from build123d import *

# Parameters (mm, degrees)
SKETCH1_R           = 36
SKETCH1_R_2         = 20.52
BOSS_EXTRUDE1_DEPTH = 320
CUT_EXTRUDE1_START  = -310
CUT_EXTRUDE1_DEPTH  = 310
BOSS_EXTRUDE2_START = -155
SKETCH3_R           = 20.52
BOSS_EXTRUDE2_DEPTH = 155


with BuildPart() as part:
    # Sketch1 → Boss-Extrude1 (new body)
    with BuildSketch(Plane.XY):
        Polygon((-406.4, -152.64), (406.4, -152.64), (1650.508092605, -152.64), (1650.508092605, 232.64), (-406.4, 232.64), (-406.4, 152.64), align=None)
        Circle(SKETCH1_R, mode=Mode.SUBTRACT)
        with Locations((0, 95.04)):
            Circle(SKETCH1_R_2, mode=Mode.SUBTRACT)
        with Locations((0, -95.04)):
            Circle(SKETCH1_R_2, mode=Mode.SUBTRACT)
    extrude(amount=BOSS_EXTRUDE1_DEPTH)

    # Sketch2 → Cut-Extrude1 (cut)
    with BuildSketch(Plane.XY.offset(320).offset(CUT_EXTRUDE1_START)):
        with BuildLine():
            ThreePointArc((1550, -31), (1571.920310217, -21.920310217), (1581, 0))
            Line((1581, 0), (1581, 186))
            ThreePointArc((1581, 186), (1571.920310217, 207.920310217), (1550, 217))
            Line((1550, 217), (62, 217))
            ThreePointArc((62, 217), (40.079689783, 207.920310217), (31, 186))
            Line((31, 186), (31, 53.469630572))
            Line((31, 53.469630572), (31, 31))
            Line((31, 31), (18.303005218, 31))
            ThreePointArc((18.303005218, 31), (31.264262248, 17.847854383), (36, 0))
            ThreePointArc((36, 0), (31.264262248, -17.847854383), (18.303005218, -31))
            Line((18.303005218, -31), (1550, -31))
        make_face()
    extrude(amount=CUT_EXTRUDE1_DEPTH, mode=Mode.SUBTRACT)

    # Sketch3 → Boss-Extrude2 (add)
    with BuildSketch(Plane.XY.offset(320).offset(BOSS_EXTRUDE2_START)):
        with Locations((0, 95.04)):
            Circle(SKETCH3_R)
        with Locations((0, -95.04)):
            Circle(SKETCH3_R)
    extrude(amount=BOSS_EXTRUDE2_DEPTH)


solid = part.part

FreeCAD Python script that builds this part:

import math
import FreeCAD as App
import Part
import Sketcher

V = App.Vector

doc = App.newDocument("Part")
body = doc.addObject("PartDesign::Body", "Body")

sketch1 = body.newObject("Sketcher::SketchObject", "Sketch")
sketch1.AttachmentSupport = (doc.getObject("XY_Plane"), [""])
sketch1.MapMode = "FlatFace"
sketch1.addGeometry(Part.LineSegment(V(-406, -153, 0), V(1651, -153, 0)), False)
sketch1.addGeometry(Part.LineSegment(V(1651, -153, 0), V(1651, 233, 0)), False)
sketch1.addGeometry(Part.LineSegment(V(1651, 233, 0), V(-406, 233, 0)), False)
sketch1.addGeometry(Part.LineSegment(V(-406, 233, 0), V(-406, -153, 0)), False)
sketch1.addGeometry(Part.Circle(V(0, -95, 0), V(0, 0, 1), 21), False)
sketch1.addGeometry(Part.Circle(V(0, 0, 0), V(0, 0, 1), 36), False)
sketch1.addGeometry(Part.Circle(V(0, 95, 0), V(0, 0, 1), 21), False)
sketch1.addConstraint(Sketcher.Constraint("Coincident", 0, 2, 1, 1))
sketch1.addConstraint(Sketcher.Constraint("Coincident", 1, 2, 2, 1))
sketch1.addConstraint(Sketcher.Constraint("Coincident", 2, 2, 3, 1))
sketch1.addConstraint(Sketcher.Constraint("Coincident", 3, 2, 0, 1))
sketch1.addConstraint(Sketcher.Constraint("Horizontal", 0))
sketch1.addConstraint(Sketcher.Constraint("Vertical", 1))
sketch1.addConstraint(Sketcher.Constraint("Horizontal", 2))
sketch1.addConstraint(Sketcher.Constraint("Vertical", 3))
sketch1.addConstraint(Sketcher.Constraint("Coincident", 5, 3, -1, 1))
sketch1.addConstraint(Sketcher.Constraint("Equal", 4, 6))
sketch1.addConstraint(Sketcher.Constraint("Symmetric", 4, 3, 6, 3, -1, 1))
sketch1.addConstraint(Sketcher.Constraint("PointOnObject", 4, 3, -2))
sketch1.addConstraint(Sketcher.Constraint("Diameter", 5, 72.0))
sketch1.addConstraint(Sketcher.Constraint("Diameter", 4, 41.04))
sketch1.addConstraint(Sketcher.Constraint("DistanceY", 1, 1, 1, 2, 385.28))
sketch1.addConstraint(Sketcher.Constraint("DistanceX", 2, 2, -1, 1, 406.4))
sketch1.addConstraint(Sketcher.Constraint("DistanceY", 0, 2, 4, 3, 57.6))
sketch1.addConstraint(Sketcher.Constraint("DistanceY", 6, 3, 1, 2, 137.6))
sketch1.addConstraint(Sketcher.Constraint("DistanceX", 0, 1, 0, 2, 2056.908093))
pad1 = body.newObject("PartDesign::Pad", "Pad")
pad1.Profile = sketch1
pad1.Length = 320

sketch2 = body.newObject("Sketcher::SketchObject", "Sketch001")
sketch2.AttachmentSupport = (doc.getObject("XY_Plane"), [""])
sketch2.MapMode = "FlatFace"
sketch2.AttachmentOffset = App.Placement(V(0, 0, 10), App.Rotation())
sketch2.addGeometry(Part.ArcOfCircle(Part.Circle(V(1550, 0, 0), V(0, 0, 1), 31), math.radians(-90), math.radians(0)), False)
sketch2.addGeometry(Part.LineSegment(V(1581, 0, 0), V(1581, 186, 0)), False)
sketch2.addGeometry(Part.ArcOfCircle(Part.Circle(V(1550, 186, 0), V(0, 0, 1), 31), math.radians(0), math.radians(90)), False)
sketch2.addGeometry(Part.LineSegment(V(1550, 217, 0), V(62, 217, 0)), False)
sketch2.addGeometry(Part.ArcOfCircle(Part.Circle(V(62, 186, 0), V(0, 0, 1), 31), math.radians(90), math.radians(180)), False)
sketch2.addGeometry(Part.LineSegment(V(31, 186, 0), V(31, 31, 0)), False)
sketch2.addGeometry(Part.LineSegment(V(31, 31, 0), V(18, 31, 0)), False)
sketch2.addGeometry(Part.ArcOfCircle(Part.Circle(V(0, 0, 0), V(0, 0, 1), 36), math.radians(0), math.radians(59)), False)
sketch2.addGeometry(Part.ArcOfCircle(Part.Circle(V(0, 0, 0), V(0, 0, 1), 36), math.radians(-59), math.radians(0)), False)
sketch2.addGeometry(Part.LineSegment(V(18, -31, 0), V(1550, -31, 0)), False)
sketch2.addConstraint(Sketcher.Constraint("Tangent", 0, 2, 1, 1))
sketch2.addConstraint(Sketcher.Constraint("Tangent", 1, 2, 2, 1))
sketch2.addConstraint(Sketcher.Constraint("Tangent", 2, 2, 3, 1))
sketch2.addConstraint(Sketcher.Constraint("Tangent", 3, 2, 4, 1))
sketch2.addConstraint(Sketcher.Constraint("Tangent", 4, 2, 5, 1))
sketch2.addConstraint(Sketcher.Constraint("Coincident", 5, 2, 6, 1))
sketch2.addConstraint(Sketcher.Constraint("Coincident", 6, 2, 7, 2))
sketch2.addConstraint(Sketcher.Constraint("Tangent", 7, 1, 8, 2))
sketch2.addConstraint(Sketcher.Constraint("Coincident", 8, 1, 9, 1))
sketch2.addConstraint(Sketcher.Constraint("Tangent", 9, 2, 0, 1))
sketch2.addConstraint(Sketcher.Constraint("Vertical", 1))
sketch2.addConstraint(Sketcher.Constraint("Horizontal", 3))
sketch2.addConstraint(Sketcher.Constraint("Vertical", 5))
sketch2.addConstraint(Sketcher.Constraint("Horizontal", 6))
sketch2.addConstraint(Sketcher.Constraint("Horizontal", 9))
sketch2.addConstraint(Sketcher.Constraint("Coincident", 7, 3, -1, 1))
sketch2.addConstraint(Sketcher.Constraint("Equal", 0, 2))
sketch2.addConstraint(Sketcher.Constraint("Equal", 2, 4))
sketch2.addConstraint(Sketcher.Constraint("Equal", 7, 8))
sketch2.addConstraint(Sketcher.Constraint("PointOnObject", 0, 3, -1))
sketch2.addConstraint(Sketcher.Constraint("PointOnObject", 7, 1, -1))
sketch2.addConstraint(Sketcher.Constraint("Vertical", 6, 2, 8, 1))
sketch2.addConstraint(Sketcher.Constraint("Radius", 0, 31.0))
sketch2.addConstraint(Sketcher.Constraint("Radius", 7, 36.0))
sketch2.addConstraint(Sketcher.Constraint("DistanceX", 3, 2, 3, 1, 1488.0))
sketch2.addConstraint(Sketcher.Constraint("DistanceY", 1, 1, 1, 2, 186.0))
sketch2.addConstraint(Sketcher.Constraint("DistanceX", -1, 1, 0, 3, 1550.0))
pocket1 = body.newObject("PartDesign::Pocket", "Pocket")
pocket1.Profile = sketch2
pocket1.Length = 310
pocket1.Reversed = True

sketch3 = body.newObject("Sketcher::SketchObject", "Sketch002")
sketch3.AttachmentSupport = (doc.getObject("XY_Plane"), [""])
sketch3.MapMode = "FlatFace"
sketch3.AttachmentOffset = App.Placement(V(0, 0, 165), App.Rotation())
sketch3.addGeometry(Part.Circle(V(0, 95, 0), V(0, 0, 1), 21), False)
sketch3.addGeometry(Part.Circle(V(0, -95, 0), V(0, 0, 1), 21), False)
sketch3.addConstraint(Sketcher.Constraint("Equal", 0, 1))
sketch3.addConstraint(Sketcher.Constraint("Symmetric", 0, 3, 1, 3, -1, 1))
sketch3.addConstraint(Sketcher.Constraint("PointOnObject", 0, 3, -2))
sketch3.addConstraint(Sketcher.Constraint("Diameter", 0, 41.04))
sketch3.addConstraint(Sketcher.Constraint("DistanceY", -1, 1, 0, 3, 95.04))
pad2 = body.newObject("PartDesign::Pad", "Pad001")
pad2.Profile = sketch3
pad2.Length = 155

doc.recompute()
